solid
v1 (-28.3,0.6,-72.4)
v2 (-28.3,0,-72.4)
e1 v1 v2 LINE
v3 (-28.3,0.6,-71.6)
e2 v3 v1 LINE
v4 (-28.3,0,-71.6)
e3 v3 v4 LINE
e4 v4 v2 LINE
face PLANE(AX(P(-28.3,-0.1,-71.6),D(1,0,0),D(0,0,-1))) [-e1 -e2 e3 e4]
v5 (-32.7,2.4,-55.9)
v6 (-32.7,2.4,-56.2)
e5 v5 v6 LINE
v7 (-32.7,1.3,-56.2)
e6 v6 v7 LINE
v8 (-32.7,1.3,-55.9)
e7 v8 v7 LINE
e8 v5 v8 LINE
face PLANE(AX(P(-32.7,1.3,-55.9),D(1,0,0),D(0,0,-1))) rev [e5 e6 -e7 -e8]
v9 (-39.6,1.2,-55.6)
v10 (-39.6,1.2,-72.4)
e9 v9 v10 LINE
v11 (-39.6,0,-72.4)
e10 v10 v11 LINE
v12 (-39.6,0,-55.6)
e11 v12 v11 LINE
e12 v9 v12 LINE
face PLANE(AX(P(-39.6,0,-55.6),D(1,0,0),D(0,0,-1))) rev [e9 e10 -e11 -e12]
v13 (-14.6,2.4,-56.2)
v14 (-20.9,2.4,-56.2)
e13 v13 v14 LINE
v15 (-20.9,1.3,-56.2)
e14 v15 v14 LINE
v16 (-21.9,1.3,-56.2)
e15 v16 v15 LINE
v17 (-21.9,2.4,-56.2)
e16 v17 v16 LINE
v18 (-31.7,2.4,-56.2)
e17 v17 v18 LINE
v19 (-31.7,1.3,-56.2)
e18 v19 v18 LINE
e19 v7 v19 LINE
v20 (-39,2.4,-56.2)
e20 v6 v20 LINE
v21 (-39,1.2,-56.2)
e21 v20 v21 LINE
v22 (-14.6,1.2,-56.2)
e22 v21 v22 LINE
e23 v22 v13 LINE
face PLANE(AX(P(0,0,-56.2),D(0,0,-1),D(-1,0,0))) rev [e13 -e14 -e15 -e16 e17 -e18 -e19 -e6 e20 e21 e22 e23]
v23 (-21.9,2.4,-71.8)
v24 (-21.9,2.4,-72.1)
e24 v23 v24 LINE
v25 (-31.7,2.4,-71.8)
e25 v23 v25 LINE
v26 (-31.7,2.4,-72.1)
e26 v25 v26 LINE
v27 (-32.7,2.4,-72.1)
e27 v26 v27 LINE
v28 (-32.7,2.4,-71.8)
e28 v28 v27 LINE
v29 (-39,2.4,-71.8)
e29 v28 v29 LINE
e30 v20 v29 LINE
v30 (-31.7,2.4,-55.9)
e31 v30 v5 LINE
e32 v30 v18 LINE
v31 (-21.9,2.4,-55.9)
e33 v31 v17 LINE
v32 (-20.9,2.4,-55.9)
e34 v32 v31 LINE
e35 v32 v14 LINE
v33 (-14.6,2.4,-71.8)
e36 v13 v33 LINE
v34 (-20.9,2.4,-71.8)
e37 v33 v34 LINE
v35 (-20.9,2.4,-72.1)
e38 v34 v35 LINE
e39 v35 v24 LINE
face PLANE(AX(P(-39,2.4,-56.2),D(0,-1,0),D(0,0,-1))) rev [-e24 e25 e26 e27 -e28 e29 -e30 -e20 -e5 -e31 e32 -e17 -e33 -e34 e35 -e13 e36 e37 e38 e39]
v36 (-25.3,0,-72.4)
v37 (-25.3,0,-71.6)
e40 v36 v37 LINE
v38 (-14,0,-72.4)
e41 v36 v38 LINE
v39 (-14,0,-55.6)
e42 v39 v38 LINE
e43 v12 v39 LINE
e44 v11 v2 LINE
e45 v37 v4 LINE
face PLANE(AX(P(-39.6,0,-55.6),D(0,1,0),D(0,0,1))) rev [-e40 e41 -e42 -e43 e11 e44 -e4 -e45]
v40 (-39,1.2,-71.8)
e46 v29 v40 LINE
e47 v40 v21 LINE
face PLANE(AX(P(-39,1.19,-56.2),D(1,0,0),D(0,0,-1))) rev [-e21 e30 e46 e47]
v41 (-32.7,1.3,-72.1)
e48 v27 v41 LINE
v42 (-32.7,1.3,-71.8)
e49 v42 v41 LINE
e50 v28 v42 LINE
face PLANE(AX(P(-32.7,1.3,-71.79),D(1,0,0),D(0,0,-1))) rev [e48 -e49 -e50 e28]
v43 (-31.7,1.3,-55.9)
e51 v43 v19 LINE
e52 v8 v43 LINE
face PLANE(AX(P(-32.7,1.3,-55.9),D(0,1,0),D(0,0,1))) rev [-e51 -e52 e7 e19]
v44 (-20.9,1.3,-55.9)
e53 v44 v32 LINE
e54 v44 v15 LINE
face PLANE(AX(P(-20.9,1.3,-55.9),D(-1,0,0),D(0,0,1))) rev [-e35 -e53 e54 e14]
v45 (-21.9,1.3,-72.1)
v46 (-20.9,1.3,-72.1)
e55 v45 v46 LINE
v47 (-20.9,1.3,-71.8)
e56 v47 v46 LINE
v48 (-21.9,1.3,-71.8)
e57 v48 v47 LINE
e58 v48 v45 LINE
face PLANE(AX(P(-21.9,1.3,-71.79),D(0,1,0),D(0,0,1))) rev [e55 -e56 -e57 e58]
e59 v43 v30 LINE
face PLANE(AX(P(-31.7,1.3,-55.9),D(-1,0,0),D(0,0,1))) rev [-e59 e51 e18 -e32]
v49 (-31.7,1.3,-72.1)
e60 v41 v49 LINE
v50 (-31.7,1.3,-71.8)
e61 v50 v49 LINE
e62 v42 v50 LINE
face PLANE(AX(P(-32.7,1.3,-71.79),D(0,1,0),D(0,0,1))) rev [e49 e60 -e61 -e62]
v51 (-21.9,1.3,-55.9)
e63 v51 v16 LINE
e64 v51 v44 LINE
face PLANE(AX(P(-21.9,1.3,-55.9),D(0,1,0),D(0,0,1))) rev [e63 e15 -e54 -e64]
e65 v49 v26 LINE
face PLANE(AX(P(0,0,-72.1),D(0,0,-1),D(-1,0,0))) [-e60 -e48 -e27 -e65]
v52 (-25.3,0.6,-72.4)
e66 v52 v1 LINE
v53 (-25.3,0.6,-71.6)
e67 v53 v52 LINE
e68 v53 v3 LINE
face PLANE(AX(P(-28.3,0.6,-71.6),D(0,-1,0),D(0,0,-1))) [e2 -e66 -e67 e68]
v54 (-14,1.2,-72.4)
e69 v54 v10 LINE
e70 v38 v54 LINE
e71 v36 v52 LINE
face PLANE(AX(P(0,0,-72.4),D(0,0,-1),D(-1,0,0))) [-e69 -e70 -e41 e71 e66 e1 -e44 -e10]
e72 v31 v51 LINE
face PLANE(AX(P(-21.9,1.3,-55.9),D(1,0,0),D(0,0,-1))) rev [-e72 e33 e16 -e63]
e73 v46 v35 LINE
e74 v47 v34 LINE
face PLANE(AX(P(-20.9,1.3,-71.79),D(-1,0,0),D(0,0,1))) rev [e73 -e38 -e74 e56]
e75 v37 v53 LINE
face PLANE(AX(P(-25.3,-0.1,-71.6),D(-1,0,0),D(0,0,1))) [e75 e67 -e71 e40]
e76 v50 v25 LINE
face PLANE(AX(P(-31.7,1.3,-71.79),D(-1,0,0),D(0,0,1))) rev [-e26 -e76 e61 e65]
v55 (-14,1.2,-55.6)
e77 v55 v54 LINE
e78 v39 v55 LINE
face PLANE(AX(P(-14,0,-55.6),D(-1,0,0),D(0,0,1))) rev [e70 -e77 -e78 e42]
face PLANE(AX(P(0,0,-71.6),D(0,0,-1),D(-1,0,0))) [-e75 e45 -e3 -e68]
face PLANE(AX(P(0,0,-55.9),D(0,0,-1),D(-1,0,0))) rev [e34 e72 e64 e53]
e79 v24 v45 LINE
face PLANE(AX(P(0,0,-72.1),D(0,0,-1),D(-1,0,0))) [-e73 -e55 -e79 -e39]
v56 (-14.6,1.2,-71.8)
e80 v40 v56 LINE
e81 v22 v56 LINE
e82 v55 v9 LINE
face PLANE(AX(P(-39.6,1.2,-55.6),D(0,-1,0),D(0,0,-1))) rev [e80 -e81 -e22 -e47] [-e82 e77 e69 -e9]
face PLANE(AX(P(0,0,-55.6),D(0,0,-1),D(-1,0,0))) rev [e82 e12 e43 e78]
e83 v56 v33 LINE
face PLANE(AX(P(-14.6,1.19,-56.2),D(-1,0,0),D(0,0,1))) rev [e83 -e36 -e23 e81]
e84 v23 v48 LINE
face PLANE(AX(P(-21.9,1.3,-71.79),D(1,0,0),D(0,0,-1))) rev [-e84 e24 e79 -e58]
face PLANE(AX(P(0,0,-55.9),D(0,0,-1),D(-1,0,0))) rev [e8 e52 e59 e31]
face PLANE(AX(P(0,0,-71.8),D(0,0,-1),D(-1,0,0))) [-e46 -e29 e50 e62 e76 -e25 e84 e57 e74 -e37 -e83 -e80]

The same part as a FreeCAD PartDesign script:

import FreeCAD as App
import Part
import Sketcher
Q = App.Units.Quantity

doc = App.newDocument("Part")
body = doc.addObject("PartDesign::Body", "Body")

# Sketch on XY plane
sketch1 = doc.addObject("Sketcher::SketchObject", "Sketch")
body.addObject(sketch1)
sketch1.AttachmentSupport = (doc.XY_Plane, [""])
sketch1.MapMode = "FlatFace"
sketch1.AttachmentOffset = App.Placement(App.Vector(0, 0, -72.4), App.Rotation())
sketch1.addGeometry(Part.LineSegment(App.Vector(-39.6, 1.2, 0), App.Vector(-39.6, 0, 0)), False)
sketch1.addGeometry(Part.LineSegment(App.Vector(-39.6, 0, 0), App.Vector(-14, 0, 0)), False)
sketch1.addGeometry(Part.LineSegment(App.Vector(-14, 0, 0), App.Vector(-14, 1.2, 0)), False)
sketch1.addGeometry(Part.LineSegment(App.Vector(-14, 1.2, 0), App.Vector(-39.6, 1.2, 0)), False)
sketch1.addConstraint(Sketcher.Constraint("Coincident", 0, 2, 1, 1))
sketch1.addConstraint(Sketcher.Constraint("Coincident", 1, 2, 2, 1))
sketch1.addConstraint(Sketcher.Constraint("Coincident", 2, 2, 3, 1))
sketch1.addConstraint(Sketcher.Constraint("Coincident", 3, 2, 0, 1))
sketch1.addConstraint(Sketcher.Constraint("Vertical", 0))
sketch1.addConstraint(Sketcher.Constraint("Horizontal", 1))
sketch1.addConstraint(Sketcher.Constraint("Vertical", 2))
sketch1.addConstraint(Sketcher.Constraint("Horizontal", 3))
sketch1.addConstraint(Sketcher.Constraint("PointOnObject", 0, 2, -1))
sketch1.addConstraint(Sketcher.Constraint("DistanceX", 1, 1, 1, 2, Q("25.6 mm")))
sketch1.addConstraint(Sketcher.Constraint("DistanceY", 0, 2, 0, 1, Q("1.2 mm")))
sketch1.addConstraint(Sketcher.Constraint("DistanceX", 1, 2, -1, 1, Q("14 mm")))
pad1 = doc.addObject("PartDesign::Pad", "Pad")
body.addObject(pad1)
pad1.Profile = sketch1
pad1.Length = 16.8

# Sketch on XY plane
sketch2 = doc.addObject("Sketcher::SketchObject", "Sketch001")
body.addObject(sketch2)
sketch2.AttachmentSupport = (doc.XY_Plane, [""])
sketch2.MapMode = "FlatFace"
sketch2.AttachmentOffset = App.Placement(App.Vector(0, 0, -71.8), App.Rotation())
sketch2.addGeometry(Part.LineSegment(App.Vector(-39, 2.4, 0), App.Vector(-39, 1.19, 0)), False)
sketch2.addGeometry(Part.LineSegment(App.Vector(-39, 1.19, 0), App.Vector(-14.6, 1.19, 0)), False)
sketch2.addGeometry(Part.LineSegment(App.Vector(-14.6, 1.19, 0), App.Vector(-14.6, 2.4, 0)), False)
sketch2.addGeometry(Part.LineSegment(App.Vector(-14.6, 2.4, 0), App.Vector(-39, 2.4, 0)), False)
sketch2.addConstraint(Sketcher.Constraint("Coincident", 0, 2, 1, 1))
sketch2.addConstraint(Sketcher.Constraint("Coincident", 1, 2, 2, 1))
sketch2.addConstraint(Sketcher.Constraint("Coincident", 2, 2, 3, 1))
sketch2.addConstraint(Sketcher.Constraint("Coincident", 3, 2, 0, 1))
sketch2.addConstraint(Sketcher.Constraint("Vertical", 0))
sketch2.addConstraint(Sketcher.Constraint("Horizontal", 1))
sketch2.addConstraint(Sketcher.Constraint("Vertical", 2))
sketch2.addConstraint(Sketcher.Constraint("Horizontal", 3))
sketch2.addConstraint(Sketcher.Constraint("DistanceX", 1, 1, 1, 2, Q("24.4 mm")))
sketch2.addConstraint(Sketcher.Constraint("DistanceX", 0, 2, -1, 1, Q("39 mm")))
sketch2.addConstraint(Sketcher.Constraint("DistanceY", 0, 2, 0, 1, Q("1.21 mm")))
sketch2.addConstraint(Sketcher.Constraint("DistanceY", -1, 1, 2, 2, Q("2.4 mm")))
pad2 = doc.addObject("PartDesign::Pad", "Pad001")
body.addObject(pad2)
pad2.Profile = sketch2
pad2.Length = 15.6

# Sketch on XY plane
sketch3 = doc.addObject("Sketcher::SketchObject", "Sketch002")
body.addObject(sketch3)
sketch3.AttachmentSupport = (doc.XY_Plane, [""])
sketch3.MapMode = "FlatFace"
sketch3.AttachmentOffset = App.Placement(App.Vector(0, 0, -72.1), App.Rotation())
sketch3.addGeometry(Part.LineSegment(App.Vector(-21.9, 2.4, 0), App.Vector(-21.9, 1.3, 0)), False)
sketch3.addGeometry(Part.LineSegment(App.Vector(-21.9, 1.3, 0), App.Vector(-20.9, 1.3, 0)), False)
sketch3.addGeometry(Part.LineSegment(App.Vector(-20.9, 1.3, 0), App.Vector(-20.9, 2.4, 0)), False)
sketch3.addGeometry(Part.LineSegment(App.Vector(-20.9, 2.4, 0), App.Vector(-21.9, 2.4, 0)), False)
sketch3.addConstraint(Sketcher.Constraint("Coincident", 0, 2, 1, 1))
sketch3.addConstraint(Sketcher.Constraint("Coincident", 1, 2, 2, 1))
sketch3.addConstraint(Sketcher.Constraint("Coincident", 2, 2, 3, 1))
sketch3.addConstraint(Sketcher.Constraint("Coincident", 3, 2, 0, 1))
sketch3.addConstraint(Sketcher.Constraint("Vertical", 0))
sketch3.addConstraint(Sketcher.Constraint("Horizontal", 1))
sketch3.addConstraint(Sketcher.Constraint("Vertical", 2))
sketch3.addConstraint(Sketcher.Constraint("Horizontal", 3))
sketch3.addConstraint(Sketcher.Constraint("DistanceX", 1, 1, 1, 2, Q("1 mm")))
sketch3.addConstraint(Sketcher.Constraint("DistanceY", 0, 2, 0, 1, Q("1.1 mm")))
sketch3.addConstraint(Sketcher.Constraint("DistanceX", 0, 2, -1, 1, Q("21.9 mm")))
sketch3.addConstraint(Sketcher.Constraint("DistanceY", -1, 1, 0, 2, Q("1.3 mm")))
pad3 = doc.addObject("PartDesign::Pad", "Pad002")
body.addObject(pad3)
pad3.Profile = sketch3
pad3.Length = 0.31

# Sketch on XY plane
sketch4 = doc.addObject("Sketcher::SketchObject", "Sketch003")
body.addObject(sketch4)
sketch4.AttachmentSupport = (doc.XY_Plane, [""])
sketch4.MapMode = "FlatFace"
sketch4.AttachmentOffset = App.Placement(App.Vector(0, 0, -56.21), App.Rotation())
sketch4.addGeometry(Part.LineSegment(App.Vector(-21.9, 2.4, 0), App.Vector(-21.9, 1.3, 0)), False)
sketch4.addGeometry(Part.LineSegment(App.Vector(-21.9, 1.3, 0), App.Vector(-20.9, 1.3, 0)), False)
sketch4.addGeometry(Part.LineSegment(App.Vector(-20.9, 1.3, 0), App.Vector(-20.9, 2.4, 0)), False)
sketch4.addGeometry(Part.LineSegment(App.Vector(-20.9, 2.4, 0), App.Vector(-21.9, 2.4, 0)), False)
sketch4.addConstraint(Sketcher.Constraint("Coincident", 0, 2, 1, 1))
sketch4.addConstraint(Sketcher.Constraint("Coincident", 1, 2, 2, 1))
sketch4.addConstraint(Sketcher.Constraint("Coincident", 2, 2, 3, 1))
sketch4.addConstraint(Sketcher.Constraint("Coincident", 3, 2, 0, 1))
sketch4.addConstraint(Sketcher.Constraint("Vertical", 0))
sketch4.addConstraint(Sketcher.Constraint("Horizontal", 1))
sketch4.addConstraint(Sketcher.Constraint("Vertical", 2))
sketch4.addConstraint(Sketcher.Constraint("Horizontal", 3))
sketch4.addConstraint(Sketcher.Constraint("DistanceX", 1, 1, 1, 2, Q("1 mm")))
sketch4.addConstraint(Sketcher.Constraint("DistanceY", 0, 2, 0, 1, Q("1.1 mm")))
sketch4.addConstraint(Sketcher.Constraint("DistanceX", 0, 2, -1, 1, Q("21.9 mm")))
sketch4.addConstraint(Sketcher.Constraint("DistanceY", -1, 1, 0, 2, Q("1.3 mm")))
pad4 = doc.addObject("PartDesign::Pad", "Pad003")
body.addObject(pad4)
pad4.Profile = sketch4
pad4.Length = 0.31

# Sketch on XY plane
sketch5 = doc.addObject("Sketcher::SketchObject", "Sketch004")
body.addObject(sketch5)
sketch5.AttachmentSupport = (doc.XY_Plane, [""])
sketch5.MapMode = "FlatFace"
sketch5.AttachmentOffset = App.Placement(App.Vector(0, 0, -72.1), App.Rotation())
sketch5.addGeometry(Part.LineSegment(App.Vector(-32.7, 2.4, 0), App.Vector(-32.7, 1.3, 0)), False)
sketch5.addGeometry(Part.LineSegment(App.Vector(-32.7, 1.3, 0), App.Vector(-31.7, 1.3, 0)), False)
sketch5.addGeometry(Part.LineSegment(App.Vector(-31.7, 1.3, 0), App.Vector(-31.7, 2.4, 0)), False)
sketch5.addGeometry(Part.LineSegment(App.Vector(-31.7, 2.4, 0), App.Vector(-32.7, 2.4, 0)), False)
sketch5.addConstraint(Sketcher.Constraint("Coincident", 0, 2, 1, 1))
sketch5.addConstraint(Sketcher.Constraint("Coincident", 1, 2, 2, 1))
sketch5.addConstraint(Sketcher.Constraint("Coincident", 2, 2, 3, 1))
sketch5.addConstraint(Sketcher.Constraint("Coincident", 3, 2, 0, 1))
sketch5.addConstraint(Sketcher.Constraint("Vertical", 0))
sketch5.addConstraint(Sketcher.Constraint("Horizontal", 1))
sketch5.addConstraint(Sketcher.Constraint("Vertical", 2))
sketch5.addConstraint(Sketcher.Constraint("Horizontal", 3))
sketch5.addConstraint(Sketcher.Constraint("DistanceX", 1, 1, 1, 2, Q("1 mm")))
sketch5.addConstraint(Sketcher.Constraint("DistanceY", 0, 2, 0, 1, Q("1.1 mm")))
sketch5.addConstraint(Sketcher.Constraint("DistanceX", 0, 2, -1, 1, Q("32.7 mm")))
sketch5.addConstraint(Sketcher.Constraint("DistanceY", -1, 1, 0, 2, Q("1.3 mm")))
pad5 = doc.addObject("PartDesign::Pad", "Pad004")
body.addObject(pad5)
pad5.Profile = sketch5
pad5.Length = 0.31

# Sketch on XY plane
sketch6 = doc.addObject("Sketcher::SketchObject", "Sketch005")
body.addObject(sketch6)
sketch6.AttachmentSupport = (doc.XY_Plane, [""])
sketch6.MapMode = "FlatFace"
sketch6.AttachmentOffset = App.Placement(App.Vector(0, 0, -56.21), App.Rotation())
sketch6.addGeometry(Part.LineSegment(App.Vector(-32.7, 2.4, 0), App.Vector(-32.7, 1.3, 0)), False)
sketch6.addGeometry(Part.LineSegment(App.Vector(-32.7, 1.3, 0), App.Vector(-31.7, 1.3, 0)), False)
sketch6.addGeometry(Part.LineSegment(App.Vector(-31.7, 1.3, 0), App.Vector(-31.7, 2.4, 0)), False)
sketch6.addGeometry(Part.LineSegment(App.Vector(-31.7, 2.4, 0), App.Vector(-32.7, 2.4, 0)), False)
sketch6.addConstraint(Sketcher.Constraint("Coincident", 0, 2, 1, 1))
sketch6.addConstraint(Sketcher.Constraint("Coincident", 1, 2, 2, 1))
sketch6.addConstraint(Sketcher.Constraint("Coincident", 2, 2, 3, 1))
sketch6.addConstraint(Sketcher.Constraint("Coincident", 3, 2, 0, 1))
sketch6.addConstraint(Sketcher.Constraint("Vertical", 0))
sketch6.addConstraint(Sketcher.Constraint("Horizontal", 1))
sketch6.addConstraint(Sketcher.Constraint("Vertical", 2))
sketch6.addConstraint(Sketcher.Constraint("Horizontal", 3))
sketch6.addConstraint(Sketcher.Constraint("DistanceX", 1, 1, 1, 2, Q("1 mm")))
sketch6.addConstraint(Sketcher.Constraint("DistanceY", 0, 2, 0, 1, Q("1.1 mm")))
sketch6.addConstraint(Sketcher.Constraint("DistanceX", 0, 2, -1, 1, Q("32.7 mm")))
sketch6.addConstraint(Sketcher.Constraint("DistanceY", -1, 1, 0, 2, Q("1.3 mm")))
pad6 = doc.addObject("PartDesign::Pad", "Pad005")
body.addObject(pad6)
pad6.Profile = sketch6
pad6.Length = 0.31
body2 = doc.addObject("PartDesign::Body", "Body001")

# Sketch on XY plane
sketch7 = doc.addObject("Sketcher::SketchObject", "Sketch006")
body2.addObject(sketch7)
sketch7.AttachmentSupport = (doc.getObject("XY_Plane001"), [""])
sketch7.MapMode = "FlatFace"
sketch7.AttachmentOffset = App.Placement(App.Vector(0, 0, -72.5), App.Rotation())
sketch7.addGeometry(Part.LineSegment(App.Vector(-28.3, 0.6, 0), App.Vector(-28.3, -0.1, 0)), False)
sketch7.addGeometry(Part.LineSegment(App.Vector(-28.3, -0.1, 0), App.Vector(-25.3, -0.1, 0)), False)
sketch7.addGeometry(Part.LineSegment(App.Vector(-25.3, -0.1, 0), App.Vector(-25.3, 0.6, 0)), False)
sketch7.addGeometry(Part.LineSegment(App.Vector(-25.3, 0.6, 0), App.Vector(-28.3, 0.6, 0)), False)
sketch7.addConstraint(Sketcher.Constraint("Coincident", 0, 2, 1, 1))
sketch7.addConstraint(Sketcher.Constraint("Coincident", 1, 2, 2, 1))
sketch7.addConstraint(Sketcher.Constraint("Coincident", 2, 2, 3, 1))
sketch7.addConstraint(Sketcher.Constraint("Coincident", 3, 2, 0, 1))
sketch7.addConstraint(Sketcher.Constraint("Vertical", 0))
sketch7.addConstraint(Sketcher.Constraint("Horizontal", 1))
sketch7.addConstraint(Sketcher.Constraint("Vertical", 2))
sketch7.addConstraint(Sketcher.Constraint("Horizontal", 3))
sketch7.addConstraint(Sketcher.Constraint("DistanceX", 1, 1, 1, 2, Q("3 mm")))
sketch7.addConstraint(Sketcher.Constraint("DistanceY", 0, 2, 0, 1, Q("0.7 mm")))
sketch7.addConstraint(Sketcher.Constraint("DistanceX", 0, 2, -1, 1, Q("28.3 mm")))
sketch7.addConstraint(Sketcher.Constraint("DistanceY", 0, 2, -1, 1, Q("0.1 mm")))
pad7 = doc.addObject("PartDesign::Pad", "Pad006")
body2.addObject(pad7)
pad7.Profile = sketch7
pad7.Length = 0.9
doc.recompute()

boolean = doc.addObject("PartDesign::Boolean", "Boolean")
body.addObject(boolean)
boolean.Type = "Cut"
boolean.addObjects([body2])

doc.recompute()
